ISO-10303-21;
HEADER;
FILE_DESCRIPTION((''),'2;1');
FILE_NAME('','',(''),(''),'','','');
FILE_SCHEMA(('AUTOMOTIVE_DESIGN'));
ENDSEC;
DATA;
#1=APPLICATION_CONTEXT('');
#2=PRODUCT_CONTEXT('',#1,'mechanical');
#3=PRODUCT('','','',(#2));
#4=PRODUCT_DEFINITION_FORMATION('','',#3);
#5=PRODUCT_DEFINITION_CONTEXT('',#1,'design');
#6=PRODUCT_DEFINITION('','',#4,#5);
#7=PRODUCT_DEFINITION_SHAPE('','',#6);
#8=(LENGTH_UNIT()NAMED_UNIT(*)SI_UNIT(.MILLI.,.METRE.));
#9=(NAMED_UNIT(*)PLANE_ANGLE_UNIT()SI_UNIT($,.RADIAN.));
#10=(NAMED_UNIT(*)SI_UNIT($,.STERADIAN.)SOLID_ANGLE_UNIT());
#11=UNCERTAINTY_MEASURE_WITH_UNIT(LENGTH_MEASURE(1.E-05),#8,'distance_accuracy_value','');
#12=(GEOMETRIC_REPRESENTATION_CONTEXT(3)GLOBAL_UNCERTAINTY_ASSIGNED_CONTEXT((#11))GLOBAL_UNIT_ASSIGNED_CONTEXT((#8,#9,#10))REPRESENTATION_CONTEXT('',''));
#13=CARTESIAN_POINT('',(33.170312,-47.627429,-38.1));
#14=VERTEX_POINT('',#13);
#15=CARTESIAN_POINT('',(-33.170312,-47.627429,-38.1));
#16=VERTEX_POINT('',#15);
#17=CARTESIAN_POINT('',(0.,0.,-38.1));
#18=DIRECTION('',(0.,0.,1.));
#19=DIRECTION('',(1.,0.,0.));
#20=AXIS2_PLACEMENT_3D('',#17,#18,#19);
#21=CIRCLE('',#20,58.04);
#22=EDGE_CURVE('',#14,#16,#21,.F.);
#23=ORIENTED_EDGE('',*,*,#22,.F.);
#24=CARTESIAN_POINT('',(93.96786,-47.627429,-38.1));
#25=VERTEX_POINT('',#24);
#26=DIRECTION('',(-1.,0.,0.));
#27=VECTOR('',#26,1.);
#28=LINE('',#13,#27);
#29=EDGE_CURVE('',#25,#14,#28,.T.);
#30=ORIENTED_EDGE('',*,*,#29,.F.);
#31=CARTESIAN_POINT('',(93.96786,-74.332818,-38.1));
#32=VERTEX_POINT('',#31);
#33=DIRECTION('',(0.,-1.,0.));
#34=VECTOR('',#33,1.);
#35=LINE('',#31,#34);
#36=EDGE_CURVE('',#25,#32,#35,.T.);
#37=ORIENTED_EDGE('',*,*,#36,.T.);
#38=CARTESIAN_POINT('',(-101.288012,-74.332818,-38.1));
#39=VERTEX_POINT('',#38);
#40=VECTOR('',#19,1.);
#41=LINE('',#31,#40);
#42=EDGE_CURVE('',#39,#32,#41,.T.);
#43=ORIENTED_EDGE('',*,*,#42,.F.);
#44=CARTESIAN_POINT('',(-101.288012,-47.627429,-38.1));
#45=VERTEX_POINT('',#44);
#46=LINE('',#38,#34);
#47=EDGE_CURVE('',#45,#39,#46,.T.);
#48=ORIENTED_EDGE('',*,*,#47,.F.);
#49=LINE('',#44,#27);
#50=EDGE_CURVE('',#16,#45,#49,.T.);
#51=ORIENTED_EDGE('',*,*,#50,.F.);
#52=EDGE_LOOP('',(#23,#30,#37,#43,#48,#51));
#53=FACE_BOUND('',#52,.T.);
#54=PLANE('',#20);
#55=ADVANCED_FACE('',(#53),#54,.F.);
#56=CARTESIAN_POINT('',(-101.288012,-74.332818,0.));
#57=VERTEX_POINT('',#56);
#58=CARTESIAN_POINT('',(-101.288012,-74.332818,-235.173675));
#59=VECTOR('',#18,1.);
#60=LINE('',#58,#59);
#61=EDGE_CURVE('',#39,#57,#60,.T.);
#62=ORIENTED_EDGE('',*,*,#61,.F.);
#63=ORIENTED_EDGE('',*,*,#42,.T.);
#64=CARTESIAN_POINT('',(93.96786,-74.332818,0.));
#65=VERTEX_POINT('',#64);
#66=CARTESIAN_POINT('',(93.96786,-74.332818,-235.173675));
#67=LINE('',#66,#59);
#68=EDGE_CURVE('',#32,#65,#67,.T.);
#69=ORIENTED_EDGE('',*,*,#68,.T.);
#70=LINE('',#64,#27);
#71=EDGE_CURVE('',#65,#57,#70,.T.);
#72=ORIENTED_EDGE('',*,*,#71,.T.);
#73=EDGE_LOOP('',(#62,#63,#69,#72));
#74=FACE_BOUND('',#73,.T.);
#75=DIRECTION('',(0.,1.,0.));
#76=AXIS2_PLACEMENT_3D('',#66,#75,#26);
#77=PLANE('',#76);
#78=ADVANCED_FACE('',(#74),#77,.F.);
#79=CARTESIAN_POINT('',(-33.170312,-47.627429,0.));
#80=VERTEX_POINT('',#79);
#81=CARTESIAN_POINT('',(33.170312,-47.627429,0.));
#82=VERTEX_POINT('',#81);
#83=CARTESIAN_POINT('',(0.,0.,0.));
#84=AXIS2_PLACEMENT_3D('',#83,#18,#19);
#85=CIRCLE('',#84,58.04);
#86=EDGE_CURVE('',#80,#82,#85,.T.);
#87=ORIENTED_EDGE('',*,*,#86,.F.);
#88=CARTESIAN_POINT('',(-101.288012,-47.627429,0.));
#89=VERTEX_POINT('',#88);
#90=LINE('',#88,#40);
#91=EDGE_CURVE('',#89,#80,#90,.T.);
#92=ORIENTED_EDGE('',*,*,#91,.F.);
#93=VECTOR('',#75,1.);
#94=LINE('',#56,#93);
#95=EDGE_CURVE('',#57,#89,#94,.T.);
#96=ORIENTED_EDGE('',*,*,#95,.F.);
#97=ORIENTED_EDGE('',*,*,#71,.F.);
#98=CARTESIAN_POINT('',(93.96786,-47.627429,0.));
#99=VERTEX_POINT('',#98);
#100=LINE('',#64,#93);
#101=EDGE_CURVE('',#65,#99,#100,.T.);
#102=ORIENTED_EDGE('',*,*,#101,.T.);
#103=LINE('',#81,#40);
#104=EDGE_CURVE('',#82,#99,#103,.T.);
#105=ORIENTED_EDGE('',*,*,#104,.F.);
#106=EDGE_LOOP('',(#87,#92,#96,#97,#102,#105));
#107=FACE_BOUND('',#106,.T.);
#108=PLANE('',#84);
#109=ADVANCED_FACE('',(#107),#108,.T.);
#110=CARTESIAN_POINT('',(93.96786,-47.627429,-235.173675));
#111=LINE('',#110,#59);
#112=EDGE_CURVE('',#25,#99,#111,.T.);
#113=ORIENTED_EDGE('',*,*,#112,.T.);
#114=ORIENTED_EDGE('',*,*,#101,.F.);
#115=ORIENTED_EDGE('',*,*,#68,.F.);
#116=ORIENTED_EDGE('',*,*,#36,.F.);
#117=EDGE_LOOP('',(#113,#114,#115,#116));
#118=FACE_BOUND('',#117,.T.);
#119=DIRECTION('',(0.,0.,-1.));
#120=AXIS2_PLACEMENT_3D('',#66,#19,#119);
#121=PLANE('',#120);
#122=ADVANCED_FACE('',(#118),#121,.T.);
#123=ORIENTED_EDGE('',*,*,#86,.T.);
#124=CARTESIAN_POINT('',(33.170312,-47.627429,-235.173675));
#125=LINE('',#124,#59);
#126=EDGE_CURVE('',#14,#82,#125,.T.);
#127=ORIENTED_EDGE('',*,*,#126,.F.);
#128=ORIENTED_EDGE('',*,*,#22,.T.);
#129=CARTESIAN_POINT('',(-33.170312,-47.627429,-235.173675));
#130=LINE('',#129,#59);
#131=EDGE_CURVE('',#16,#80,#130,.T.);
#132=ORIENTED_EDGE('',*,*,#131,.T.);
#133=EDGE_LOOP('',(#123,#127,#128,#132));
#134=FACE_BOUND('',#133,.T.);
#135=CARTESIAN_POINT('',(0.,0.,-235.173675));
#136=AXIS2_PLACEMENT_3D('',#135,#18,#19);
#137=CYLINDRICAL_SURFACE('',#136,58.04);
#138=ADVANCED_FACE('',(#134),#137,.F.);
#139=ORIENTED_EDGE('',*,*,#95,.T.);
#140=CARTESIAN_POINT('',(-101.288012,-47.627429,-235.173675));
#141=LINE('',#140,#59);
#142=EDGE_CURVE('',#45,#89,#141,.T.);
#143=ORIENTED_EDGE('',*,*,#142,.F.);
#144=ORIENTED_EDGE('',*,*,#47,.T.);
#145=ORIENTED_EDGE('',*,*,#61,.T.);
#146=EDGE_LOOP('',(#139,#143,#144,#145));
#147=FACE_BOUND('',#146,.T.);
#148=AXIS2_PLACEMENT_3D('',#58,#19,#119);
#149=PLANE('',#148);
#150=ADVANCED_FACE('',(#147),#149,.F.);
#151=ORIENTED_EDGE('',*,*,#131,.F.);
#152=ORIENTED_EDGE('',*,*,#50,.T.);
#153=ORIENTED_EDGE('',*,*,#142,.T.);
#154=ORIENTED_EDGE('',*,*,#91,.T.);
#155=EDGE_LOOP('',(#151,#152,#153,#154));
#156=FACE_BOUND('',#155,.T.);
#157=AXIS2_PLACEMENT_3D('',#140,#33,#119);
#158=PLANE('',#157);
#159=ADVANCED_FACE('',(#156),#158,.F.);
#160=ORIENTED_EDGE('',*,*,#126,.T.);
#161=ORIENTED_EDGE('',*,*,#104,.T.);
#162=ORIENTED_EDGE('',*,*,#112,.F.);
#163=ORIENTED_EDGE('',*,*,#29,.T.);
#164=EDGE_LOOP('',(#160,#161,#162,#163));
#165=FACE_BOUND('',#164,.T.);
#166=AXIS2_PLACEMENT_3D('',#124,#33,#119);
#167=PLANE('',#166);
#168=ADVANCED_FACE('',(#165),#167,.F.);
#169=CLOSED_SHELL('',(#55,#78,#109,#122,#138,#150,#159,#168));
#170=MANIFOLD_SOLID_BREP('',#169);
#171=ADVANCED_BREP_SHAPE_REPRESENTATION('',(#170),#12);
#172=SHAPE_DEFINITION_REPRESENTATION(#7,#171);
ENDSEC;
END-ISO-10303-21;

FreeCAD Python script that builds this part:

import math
import FreeCAD as App
import Part
import Sketcher
from FreeCAD import Vector
Q = App.Units.Quantity

doc = App.newDocument("Part")
body = doc.addObject("PartDesign::Body", "Body")

# Sketch on XY plane
sketch1 = body.newObject("Sketcher::SketchObject", "Sketch")
sketch1.AttachmentSupport = (doc.getObject("XY_Plane"), [""])
sketch1.MapMode = "FlatFace"
sketch1.addGeometry([
    Part.LineSegment(Vector(93.96786, -47.627429, 0), Vector(33.170312, -47.627429, 0)),  # 0
    Part.ArcOfCircle(Part.Circle(Vector(0, 0, 0), Vector(0, 0, 1), 58.04), math.radians(-124.855436), math.radians(-55.144564)),  # 1
    Part.LineSegment(Vector(-33.170312, -47.627429, 0), Vector(-101.288012, -47.627429, 0)),  # 2
    Part.LineSegment(Vector(-101.288012, -47.627429, 0), Vector(-101.288012, -74.332818, 0)),  # 3
    Part.LineSegment(Vector(-101.288012, -74.332818, 0), Vector(93.96786, -74.332818, 0)),  # 4
    Part.LineSegment(Vector(93.96786, -74.332818, 0), Vector(93.96786, -47.627429, 0)),  # 5
], False)
sketch1.addConstraint([
    Sketcher.Constraint("Coincident", 0, 2, 1, 2),
    Sketcher.Constraint("Coincident", 1, 1, 2, 1),
    Sketcher.Constraint("Coincident", 2, 2, 3, 1),
    Sketcher.Constraint("Coincident", 3, 2, 4, 1),
    Sketcher.Constraint("Coincident", 4, 2, 5, 1),
    Sketcher.Constraint("Coincident", 5, 2, 0, 1),
    Sketcher.Constraint("Horizontal", 0),
    Sketcher.Constraint("Horizontal", 2),
    Sketcher.Constraint("Vertical", 3),
    Sketcher.Constraint("Horizontal", 4),
    Sketcher.Constraint("Vertical", 5),
    Sketcher.Constraint("Coincident", 1, 3, -1, 1),
    Sketcher.Constraint("Horizontal", 0, 2, 1, 1),
    Sketcher.Constraint("Radius", 1, Q("58.04 mm")),
    Sketcher.Constraint("DistanceX", 2, 2, 2, 1, Q("68.117699 mm")),
    Sketcher.Constraint("DistanceX", 4, 1, 4, 2, Q("195.255872 mm")),
    Sketcher.Constraint("DistanceY", 3, 2, 3, 1, Q("26.705389 mm")),
    Sketcher.Constraint("DistanceX", 0, 2, 0, 1, Q("60.797548 mm")),
])
pad1 = body.newObject("PartDesign::Pad", "Pad")
pad1.Profile = sketch1
pad1.Length = Q("1.5 in")
pad1.Reversed = True

doc.recompute()
